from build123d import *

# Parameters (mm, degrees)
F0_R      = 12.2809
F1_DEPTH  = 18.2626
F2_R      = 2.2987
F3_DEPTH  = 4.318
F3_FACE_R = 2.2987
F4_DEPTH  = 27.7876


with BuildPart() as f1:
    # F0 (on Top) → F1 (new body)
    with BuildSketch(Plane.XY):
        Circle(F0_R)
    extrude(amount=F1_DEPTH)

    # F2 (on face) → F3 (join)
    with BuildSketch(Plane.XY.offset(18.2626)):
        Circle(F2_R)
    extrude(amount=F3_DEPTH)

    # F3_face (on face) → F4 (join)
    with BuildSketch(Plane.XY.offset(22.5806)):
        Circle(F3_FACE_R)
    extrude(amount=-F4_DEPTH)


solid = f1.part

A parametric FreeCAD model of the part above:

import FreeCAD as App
import Part
import Sketcher
from FreeCAD import Vector
Q = App.Units.Quantity

doc = App.newDocument("Part")
body = doc.addObject("PartDesign::Body", "Body")

# Sketch on XY plane
sketch1 = doc.addObject("Sketcher::SketchObject", "Sketch")
body.addObject(sketch1)
sketch1.AttachmentSupport = (doc.XY_Plane, [""])
sketch1.MapMode = "FlatFace"
sketch1.addGeometry(Part.Circle(Vector(0, 0, 0), Vector(0, 0, 1), 12), False)
sketch1.addConstraint(Sketcher.Constraint("Coincident", 0, 3, -1, 1))
sketch1.addConstraint(Sketcher.Constraint("Diameter", 0, Q("0.967 in")))
pad1 = doc.addObject("PartDesign::Pad", "Pad")
body.addObject(pad1)
pad1.Profile = sketch1
pad1.Length = Q("0.719 in")

# Sketch on XY plane
sketch2 = doc.addObject("Sketcher::SketchObject", "Sketch001")
body.addObject(sketch2)
sketch2.AttachmentSupport = (doc.XY_Plane, [""])
sketch2.MapMode = "FlatFace"
sketch2.AttachmentOffset = App.Placement(Vector(0, 0, 0.719 * 25.4), App.Rotation())
sketch2.addGeometry(Part.Circle(Vector(0, 0, 0), Vector(0, 0, 1), 2.3), False)
sketch2.addConstraint(Sketcher.Constraint("Coincident", 0, 3, -1, 1))
sketch2.addConstraint(Sketcher.Constraint("Diameter", 0, Q("0.181 in")))
pad2 = doc.addObject("PartDesign::Pad", "Pad001")
body.addObject(pad2)
pad2.Profile = sketch2
pad2.Length = Q("0.17 in")

# Sketch on XY plane
sketch3 = doc.addObject("Sketcher::SketchObject", "Sketch002")
body.addObject(sketch3)
sketch3.AttachmentSupport = (doc.XY_Plane, [""])
sketch3.MapMode = "FlatFace"
sketch3.AttachmentOffset = App.Placement(Vector(0, 0, 0.889 * 25.4), App.Rotation())
sketch3.addGeometry(Part.Circle(Vector(0, 0, 0), Vector(0, 0, 1), 2.3), False)
sketch3.addConstraint(Sketcher.Constraint("Coincident", 0, 3, -1, 1))
sketch3.addConstraint(Sketcher.Constraint("Diameter", 0, Q("0.181 in")))
pad3 = doc.addObject("PartDesign::Pad", "Pad002")
body.addObject(pad3)
pad3.Profile = sketch3
pad3.Length = Q("1.094 in")
pad3.Reversed = True

doc.recompute()
